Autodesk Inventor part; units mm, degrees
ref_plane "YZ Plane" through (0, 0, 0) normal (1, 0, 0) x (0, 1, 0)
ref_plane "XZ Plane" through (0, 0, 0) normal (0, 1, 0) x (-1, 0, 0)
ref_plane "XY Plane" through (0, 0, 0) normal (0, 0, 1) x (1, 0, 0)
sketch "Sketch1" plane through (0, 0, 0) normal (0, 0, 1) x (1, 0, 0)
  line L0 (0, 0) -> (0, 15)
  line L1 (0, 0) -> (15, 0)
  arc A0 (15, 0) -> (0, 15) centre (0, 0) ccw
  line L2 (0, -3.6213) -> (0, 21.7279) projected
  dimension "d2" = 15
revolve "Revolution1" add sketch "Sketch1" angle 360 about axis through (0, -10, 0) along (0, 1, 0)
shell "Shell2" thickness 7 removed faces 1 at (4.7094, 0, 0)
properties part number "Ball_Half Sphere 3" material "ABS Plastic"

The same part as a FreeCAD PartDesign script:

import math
import FreeCAD as App
import Part
import Sketcher
from FreeCAD import Vector
Q = App.Units.Quantity


def faces_at(feature, points):
    """Names of the faces that lie closest to the given points."""
    faces = feature.Shape.Faces
    near = lambda p: min(range(len(faces)), key=lambda i: faces[i].distToShape(Part.Vertex(*p))[0])
    return sorted({f"Face{near(p) + 1}" for p in points})

doc = App.newDocument("Part")
params = doc.addObject("Spreadsheet::Sheet", "Params")
for row, (alias, value) in enumerate([
    ("sketch1_radius", "15 mm"),
    ("revolution_angle", "360 deg"),
    ("thickness_wall", "7 mm"),
], start=1):
    params.set(f"A{row}", alias)
    params.set(f"B{row}", "=" + value)
    params.setAlias(f"B{row}", alias)

body = doc.addObject("PartDesign::Body", "Body")

sketch1 = body.newObject("Sketcher::SketchObject", "Sketch")
sketch1.AttachmentSupport = (doc.getObject("XY_Plane"), [""])
sketch1.MapMode = "FlatFace"
sketch1.addGeometry(Part.LineSegment(Vector(0, 15, 0), Vector(0, 0, 0)), False)
sketch1.addGeometry(Part.LineSegment(Vector(0, 0, 0), Vector(15, 0, 0)), False)
sketch1.addGeometry(Part.ArcOfCircle(Part.Circle(Vector(0, 0, 0), Vector(0, 0, 1), 15), math.radians(0), math.radians(90)), False)
sketch1.addConstraint(Sketcher.Constraint("Coincident", 0, 2, 1, 1))
sketch1.addConstraint(Sketcher.Constraint("Coincident", 1, 2, 2, 1))
sketch1.addConstraint(Sketcher.Constraint("Coincident", 2, 2, 0, 1))
sketch1.addConstraint(Sketcher.Constraint("Vertical", 0))
sketch1.addConstraint(Sketcher.Constraint("Horizontal", 1))
sketch1.addConstraint(Sketcher.Constraint("Coincident", 2, 3, -1, 1))
sketch1.addConstraint(Sketcher.Constraint("Coincident", 0, 2, -1, 1))
sketch1.addConstraint(Sketcher.Constraint("Radius", 2, Q("15 mm")))
sketch1.setExpression("Constraints[7]", "Params.sketch1_radius")
revolution = body.newObject("PartDesign::Revolution", "Revolution")
revolution.Profile = sketch1
revolution.ReferenceAxis = (sketch1, ["V_Axis"])
revolution.setExpression("Angle", "Params.revolution_angle")
doc.recompute()

thickness = body.newObject("PartDesign::Thickness", "Thickness")
thickness.Base = (revolution, faces_at(revolution, [(4.709, 0, 0)]))
thickness.setExpression("Value", "Params.thickness_wall")
thickness.Reversed = True
thickness.Join = "Intersection"

doc.recompute()
